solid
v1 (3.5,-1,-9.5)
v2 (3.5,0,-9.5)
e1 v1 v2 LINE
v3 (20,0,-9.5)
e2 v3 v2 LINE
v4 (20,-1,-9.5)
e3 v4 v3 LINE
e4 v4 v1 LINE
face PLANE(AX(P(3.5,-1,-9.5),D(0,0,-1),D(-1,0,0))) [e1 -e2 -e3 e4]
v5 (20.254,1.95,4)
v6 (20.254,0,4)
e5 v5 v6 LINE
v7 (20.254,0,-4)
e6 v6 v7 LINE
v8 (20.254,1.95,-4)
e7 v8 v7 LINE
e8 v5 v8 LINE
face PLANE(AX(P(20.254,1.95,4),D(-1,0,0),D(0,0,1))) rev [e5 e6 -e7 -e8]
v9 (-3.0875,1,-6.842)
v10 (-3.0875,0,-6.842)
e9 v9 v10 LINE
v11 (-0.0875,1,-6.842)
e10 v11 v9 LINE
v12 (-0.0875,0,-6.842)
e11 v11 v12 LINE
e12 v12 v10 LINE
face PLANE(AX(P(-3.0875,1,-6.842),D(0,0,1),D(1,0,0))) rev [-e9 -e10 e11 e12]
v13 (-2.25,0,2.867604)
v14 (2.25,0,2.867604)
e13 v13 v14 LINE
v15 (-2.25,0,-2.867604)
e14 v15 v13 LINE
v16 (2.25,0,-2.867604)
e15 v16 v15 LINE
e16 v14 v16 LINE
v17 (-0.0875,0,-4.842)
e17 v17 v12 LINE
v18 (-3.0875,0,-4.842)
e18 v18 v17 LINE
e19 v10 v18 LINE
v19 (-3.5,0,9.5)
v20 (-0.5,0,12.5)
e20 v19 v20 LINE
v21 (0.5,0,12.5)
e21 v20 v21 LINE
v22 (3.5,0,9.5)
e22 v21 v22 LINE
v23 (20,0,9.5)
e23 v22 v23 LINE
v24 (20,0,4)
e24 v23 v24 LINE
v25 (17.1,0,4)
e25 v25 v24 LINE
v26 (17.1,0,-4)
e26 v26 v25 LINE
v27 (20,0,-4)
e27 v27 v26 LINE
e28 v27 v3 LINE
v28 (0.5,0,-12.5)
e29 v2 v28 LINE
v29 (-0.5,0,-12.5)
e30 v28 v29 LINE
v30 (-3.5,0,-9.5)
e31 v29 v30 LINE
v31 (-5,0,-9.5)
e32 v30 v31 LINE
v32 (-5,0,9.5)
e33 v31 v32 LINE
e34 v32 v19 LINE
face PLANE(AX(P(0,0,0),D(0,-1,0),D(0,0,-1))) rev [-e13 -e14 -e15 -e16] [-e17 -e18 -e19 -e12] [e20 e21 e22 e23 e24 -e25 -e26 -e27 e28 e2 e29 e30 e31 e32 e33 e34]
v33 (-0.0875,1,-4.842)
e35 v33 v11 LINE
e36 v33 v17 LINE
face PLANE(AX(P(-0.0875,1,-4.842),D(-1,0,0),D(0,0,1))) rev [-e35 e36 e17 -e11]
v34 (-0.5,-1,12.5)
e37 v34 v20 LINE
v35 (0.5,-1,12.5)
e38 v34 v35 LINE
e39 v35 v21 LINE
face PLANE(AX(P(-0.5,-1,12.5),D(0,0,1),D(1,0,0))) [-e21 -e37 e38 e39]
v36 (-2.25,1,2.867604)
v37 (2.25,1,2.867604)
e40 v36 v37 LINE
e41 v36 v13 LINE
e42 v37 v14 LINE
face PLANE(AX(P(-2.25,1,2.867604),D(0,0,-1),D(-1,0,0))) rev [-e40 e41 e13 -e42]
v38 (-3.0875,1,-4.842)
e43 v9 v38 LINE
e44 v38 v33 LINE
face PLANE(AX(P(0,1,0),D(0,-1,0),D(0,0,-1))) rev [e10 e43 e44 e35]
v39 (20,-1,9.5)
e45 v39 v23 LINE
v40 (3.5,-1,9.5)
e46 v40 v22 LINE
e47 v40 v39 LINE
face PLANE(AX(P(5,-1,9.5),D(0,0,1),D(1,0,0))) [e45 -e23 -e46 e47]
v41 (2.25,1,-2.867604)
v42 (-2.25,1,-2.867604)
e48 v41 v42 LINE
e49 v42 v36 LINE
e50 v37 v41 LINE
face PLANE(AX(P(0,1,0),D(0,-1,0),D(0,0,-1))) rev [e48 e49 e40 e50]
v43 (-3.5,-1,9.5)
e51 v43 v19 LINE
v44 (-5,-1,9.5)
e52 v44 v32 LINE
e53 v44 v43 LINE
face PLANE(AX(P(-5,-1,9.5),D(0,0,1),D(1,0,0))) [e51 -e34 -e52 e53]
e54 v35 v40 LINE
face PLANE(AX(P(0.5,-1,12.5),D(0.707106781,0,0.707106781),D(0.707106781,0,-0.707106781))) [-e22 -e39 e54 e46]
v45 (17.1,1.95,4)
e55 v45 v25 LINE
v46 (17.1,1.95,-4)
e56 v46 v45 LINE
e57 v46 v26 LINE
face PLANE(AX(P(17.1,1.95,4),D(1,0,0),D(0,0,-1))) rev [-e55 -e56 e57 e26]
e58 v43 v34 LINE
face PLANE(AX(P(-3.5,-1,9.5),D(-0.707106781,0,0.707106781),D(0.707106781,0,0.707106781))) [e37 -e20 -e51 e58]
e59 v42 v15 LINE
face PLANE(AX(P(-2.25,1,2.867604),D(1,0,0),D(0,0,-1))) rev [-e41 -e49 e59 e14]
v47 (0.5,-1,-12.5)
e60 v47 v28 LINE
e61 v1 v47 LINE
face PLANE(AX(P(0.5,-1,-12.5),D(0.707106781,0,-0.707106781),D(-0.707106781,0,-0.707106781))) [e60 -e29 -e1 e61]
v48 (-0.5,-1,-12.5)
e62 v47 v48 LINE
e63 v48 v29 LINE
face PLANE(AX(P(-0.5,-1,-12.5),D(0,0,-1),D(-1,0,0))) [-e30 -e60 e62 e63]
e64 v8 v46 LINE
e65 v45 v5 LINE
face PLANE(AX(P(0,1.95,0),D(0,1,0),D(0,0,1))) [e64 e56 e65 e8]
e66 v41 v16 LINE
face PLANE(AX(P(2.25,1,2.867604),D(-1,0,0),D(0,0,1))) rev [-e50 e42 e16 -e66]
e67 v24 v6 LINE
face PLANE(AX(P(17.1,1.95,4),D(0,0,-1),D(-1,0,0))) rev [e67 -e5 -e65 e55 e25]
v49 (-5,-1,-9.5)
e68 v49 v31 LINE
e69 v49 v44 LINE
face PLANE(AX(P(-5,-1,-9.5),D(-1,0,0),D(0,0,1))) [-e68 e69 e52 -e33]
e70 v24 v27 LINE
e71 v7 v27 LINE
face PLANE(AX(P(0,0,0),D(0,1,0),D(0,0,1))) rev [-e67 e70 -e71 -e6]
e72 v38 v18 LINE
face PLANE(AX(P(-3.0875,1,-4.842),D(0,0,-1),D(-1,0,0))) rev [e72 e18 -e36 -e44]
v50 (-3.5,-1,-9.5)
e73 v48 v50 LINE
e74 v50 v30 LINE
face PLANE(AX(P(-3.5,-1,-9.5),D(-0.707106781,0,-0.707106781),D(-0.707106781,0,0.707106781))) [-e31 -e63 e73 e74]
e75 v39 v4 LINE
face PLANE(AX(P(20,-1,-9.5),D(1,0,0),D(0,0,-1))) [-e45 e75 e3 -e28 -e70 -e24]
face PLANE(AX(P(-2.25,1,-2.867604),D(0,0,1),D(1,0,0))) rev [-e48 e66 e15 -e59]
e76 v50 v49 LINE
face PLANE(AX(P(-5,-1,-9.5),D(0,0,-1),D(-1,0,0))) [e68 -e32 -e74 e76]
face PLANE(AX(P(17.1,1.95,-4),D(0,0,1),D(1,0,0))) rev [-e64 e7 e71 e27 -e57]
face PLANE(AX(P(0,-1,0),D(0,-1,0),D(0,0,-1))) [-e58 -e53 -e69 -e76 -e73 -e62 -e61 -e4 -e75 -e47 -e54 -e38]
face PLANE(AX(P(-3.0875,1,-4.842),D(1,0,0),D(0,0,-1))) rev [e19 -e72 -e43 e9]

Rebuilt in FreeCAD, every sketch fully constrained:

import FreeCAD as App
import Part
import Sketcher


def add_polygon(sketch, points):
    """Adds a closed chain of lines whose ends are joined by coincident constraints."""
    first, n = sketch.GeometryCount, len(points)
    for a, b in zip(points, points[1:] + points[:1]):
        sketch.addGeometry(Part.LineSegment(App.Vector(*a, 0), App.Vector(*b, 0)), False)
    for i in range(n):
        sketch.addConstraint(Sketcher.Constraint("Coincident", first + i, 2, first + (i + 1) % n, 1))

doc = App.newDocument("Part")
body = doc.addObject("PartDesign::Body", "Body")

# Sketch on XZ plane
sketch1 = doc.addObject("Sketcher::SketchObject", "Sketch")
body.addObject(sketch1)
sketch1.AttachmentSupport = (doc.XZ_Plane, [""])
sketch1.MapMode = "FlatFace"
add_polygon(sketch1, [(-0.5, -12.5), (-3.5, -9.5), (-5, -9.5), (-5, 9.5), (-3.5, 9.5), (-0.5, 12.5), (0.5, 12.5), (3.5, 9.5), (20, 9.5), (20, -9.5), (3.5, -9.5), (0.5, -12.5)])  # lines 0-11
sketch1.addConstraint(Sketcher.Constraint("Horizontal", 1))
sketch1.addConstraint(Sketcher.Constraint("Vertical", 2))
sketch1.addConstraint(Sketcher.Constraint("Horizontal", 3))
sketch1.addConstraint(Sketcher.Constraint("Horizontal", 5))
sketch1.addConstraint(Sketcher.Constraint("Horizontal", 7))
sketch1.addConstraint(Sketcher.Constraint("Vertical", 8))
sketch1.addConstraint(Sketcher.Constraint("Horizontal", 9))
sketch1.addConstraint(Sketcher.Constraint("Horizontal", 11))
sketch1.addConstraint(Sketcher.Constraint("Symmetric", 0, 2, 6, 2, -1, 1))
sketch1.addConstraint(Sketcher.Constraint("Symmetric", 3, 2, 9, 2, -1, 1))
sketch1.addConstraint(Sketcher.Constraint("Symmetric", 4, 2, 10, 2, -1, 1))
sketch1.addConstraint(Sketcher.Constraint("Symmetric", 3, 2, 6, 2, -2))
sketch1.addConstraint(Sketcher.Constraint("Perpendicular", 0, 4))
sketch1.addConstraint(Sketcher.Constraint("Perpendicular", 4, 6))
sketch1.addConstraint(Sketcher.Constraint("Vertical", 5, 2, 10, 2))
sketch1.addConstraint(Sketcher.Constraint("DistanceX", 5, 1, 5, 2, 1.0))
sketch1.addConstraint(Sketcher.Constraint("DistanceY", 2, 1, 2, 2, 19.0))
sketch1.addConstraint(Sketcher.Constraint("DistanceX", 1, 2, 1, 1, 1.5))
sketch1.addConstraint(Sketcher.Constraint("DistanceX", 7, 1, 7, 2, 16.5))
sketch1.addConstraint(Sketcher.Constraint("DistanceX", 1, 2, -1, 1, 5.0))
pad1 = doc.addObject("PartDesign::Pad", "Pad")
body.addObject(pad1)
pad1.Profile = sketch1
pad1.Length = 1

# Sketch on XZ plane
sketch2 = doc.addObject("Sketcher::SketchObject", "Sketch001")
body.addObject(sketch2)
sketch2.AttachmentSupport = (doc.XZ_Plane, [""])
sketch2.MapMode = "FlatFace"
add_polygon(sketch2, [(-2.25, -2.867604), (-2.25, 2.867604), (2.25, 2.867604), (2.25, -2.867604)])  # lines 0-3
add_polygon(sketch2, [(-3.0875, -6.842), (-3.0875, -4.842), (-0.0875, -4.842), (-0.0875, -6.842)])  # lines 4-7
sketch2.addConstraint(Sketcher.Constraint("Vertical", 0))
sketch2.addConstraint(Sketcher.Constraint("Horizontal", 1))
sketch2.addConstraint(Sketcher.Constraint("Vertical", 2))
sketch2.addConstraint(Sketcher.Constraint("Horizontal", 3))
sketch2.addConstraint(Sketcher.Constraint("Vertical", 4))
sketch2.addConstraint(Sketcher.Constraint("Horizontal", 5))
sketch2.addConstraint(Sketcher.Constraint("Vertical", 6))
sketch2.addConstraint(Sketcher.Constraint("Horizontal", 7))
sketch2.addConstraint(Sketcher.Constraint("Symmetric", 0, 2, 2, 2, -1, 1))
sketch2.addConstraint(Sketcher.Constraint("DistanceX", 5, 1, 5, 2, 3.0))
sketch2.addConstraint(Sketcher.Constraint("DistanceY", 4, 1, 4, 2, 2.0))
sketch2.addConstraint(Sketcher.Constraint("DistanceX", 1, 1, 1, 2, 4.5))
sketch2.addConstraint(Sketcher.Constraint("DistanceY", 4, 2, -1, 1, 4.842))
sketch2.addConstraint(Sketcher.Constraint("DistanceY", 0, 1, 0, 2, 5.735208))
sketch2.addConstraint(Sketcher.Constraint("DistanceX", 4, 2, -1, 1, 3.0875))
pad2 = doc.addObject("PartDesign::Pad", "Pad001")
body.addObject(pad2)
pad2.Profile = sketch2
pad2.Length = 1
pad2.Reversed = True

# Sketch on XZ plane
sketch3 = doc.addObject("Sketcher::SketchObject", "Sketch002")
body.addObject(sketch3)
sketch3.AttachmentSupport = (doc.XZ_Plane, [""])
sketch3.MapMode = "FlatFace"
add_polygon(sketch3, [(17.1, -4), (17.1, 4), (20.254, 4), (20.254, -4)])  # lines 0-3
sketch3.addConstraint(Sketcher.Constraint("Vertical", 0))
sketch3.addConstraint(Sketcher.Constraint("Horizontal", 1))
sketch3.addConstraint(Sketcher.Constraint("Vertical", 2))
sketch3.addConstraint(Sketcher.Constraint("Horizontal", 3))
sketch3.addConstraint(Sketcher.Constraint("DistanceY", 0, 1, 0, 2, 8.0))
sketch3.addConstraint(Sketcher.Constraint("DistanceY", -1, 1, 0, 2, 4.0))
sketch3.addConstraint(Sketcher.Constraint("DistanceX", -1, 1, 0, 2, 17.1))
sketch3.addConstraint(Sketcher.Constraint("DistanceX", 1, 1, 1, 2, 3.154))
pad3 = doc.addObject("PartDesign::Pad", "Pad002")
body.addObject(pad3)
pad3.Profile = sketch3
pad3.Length = 1.95
pad3.Reversed = True

doc.recompute()
